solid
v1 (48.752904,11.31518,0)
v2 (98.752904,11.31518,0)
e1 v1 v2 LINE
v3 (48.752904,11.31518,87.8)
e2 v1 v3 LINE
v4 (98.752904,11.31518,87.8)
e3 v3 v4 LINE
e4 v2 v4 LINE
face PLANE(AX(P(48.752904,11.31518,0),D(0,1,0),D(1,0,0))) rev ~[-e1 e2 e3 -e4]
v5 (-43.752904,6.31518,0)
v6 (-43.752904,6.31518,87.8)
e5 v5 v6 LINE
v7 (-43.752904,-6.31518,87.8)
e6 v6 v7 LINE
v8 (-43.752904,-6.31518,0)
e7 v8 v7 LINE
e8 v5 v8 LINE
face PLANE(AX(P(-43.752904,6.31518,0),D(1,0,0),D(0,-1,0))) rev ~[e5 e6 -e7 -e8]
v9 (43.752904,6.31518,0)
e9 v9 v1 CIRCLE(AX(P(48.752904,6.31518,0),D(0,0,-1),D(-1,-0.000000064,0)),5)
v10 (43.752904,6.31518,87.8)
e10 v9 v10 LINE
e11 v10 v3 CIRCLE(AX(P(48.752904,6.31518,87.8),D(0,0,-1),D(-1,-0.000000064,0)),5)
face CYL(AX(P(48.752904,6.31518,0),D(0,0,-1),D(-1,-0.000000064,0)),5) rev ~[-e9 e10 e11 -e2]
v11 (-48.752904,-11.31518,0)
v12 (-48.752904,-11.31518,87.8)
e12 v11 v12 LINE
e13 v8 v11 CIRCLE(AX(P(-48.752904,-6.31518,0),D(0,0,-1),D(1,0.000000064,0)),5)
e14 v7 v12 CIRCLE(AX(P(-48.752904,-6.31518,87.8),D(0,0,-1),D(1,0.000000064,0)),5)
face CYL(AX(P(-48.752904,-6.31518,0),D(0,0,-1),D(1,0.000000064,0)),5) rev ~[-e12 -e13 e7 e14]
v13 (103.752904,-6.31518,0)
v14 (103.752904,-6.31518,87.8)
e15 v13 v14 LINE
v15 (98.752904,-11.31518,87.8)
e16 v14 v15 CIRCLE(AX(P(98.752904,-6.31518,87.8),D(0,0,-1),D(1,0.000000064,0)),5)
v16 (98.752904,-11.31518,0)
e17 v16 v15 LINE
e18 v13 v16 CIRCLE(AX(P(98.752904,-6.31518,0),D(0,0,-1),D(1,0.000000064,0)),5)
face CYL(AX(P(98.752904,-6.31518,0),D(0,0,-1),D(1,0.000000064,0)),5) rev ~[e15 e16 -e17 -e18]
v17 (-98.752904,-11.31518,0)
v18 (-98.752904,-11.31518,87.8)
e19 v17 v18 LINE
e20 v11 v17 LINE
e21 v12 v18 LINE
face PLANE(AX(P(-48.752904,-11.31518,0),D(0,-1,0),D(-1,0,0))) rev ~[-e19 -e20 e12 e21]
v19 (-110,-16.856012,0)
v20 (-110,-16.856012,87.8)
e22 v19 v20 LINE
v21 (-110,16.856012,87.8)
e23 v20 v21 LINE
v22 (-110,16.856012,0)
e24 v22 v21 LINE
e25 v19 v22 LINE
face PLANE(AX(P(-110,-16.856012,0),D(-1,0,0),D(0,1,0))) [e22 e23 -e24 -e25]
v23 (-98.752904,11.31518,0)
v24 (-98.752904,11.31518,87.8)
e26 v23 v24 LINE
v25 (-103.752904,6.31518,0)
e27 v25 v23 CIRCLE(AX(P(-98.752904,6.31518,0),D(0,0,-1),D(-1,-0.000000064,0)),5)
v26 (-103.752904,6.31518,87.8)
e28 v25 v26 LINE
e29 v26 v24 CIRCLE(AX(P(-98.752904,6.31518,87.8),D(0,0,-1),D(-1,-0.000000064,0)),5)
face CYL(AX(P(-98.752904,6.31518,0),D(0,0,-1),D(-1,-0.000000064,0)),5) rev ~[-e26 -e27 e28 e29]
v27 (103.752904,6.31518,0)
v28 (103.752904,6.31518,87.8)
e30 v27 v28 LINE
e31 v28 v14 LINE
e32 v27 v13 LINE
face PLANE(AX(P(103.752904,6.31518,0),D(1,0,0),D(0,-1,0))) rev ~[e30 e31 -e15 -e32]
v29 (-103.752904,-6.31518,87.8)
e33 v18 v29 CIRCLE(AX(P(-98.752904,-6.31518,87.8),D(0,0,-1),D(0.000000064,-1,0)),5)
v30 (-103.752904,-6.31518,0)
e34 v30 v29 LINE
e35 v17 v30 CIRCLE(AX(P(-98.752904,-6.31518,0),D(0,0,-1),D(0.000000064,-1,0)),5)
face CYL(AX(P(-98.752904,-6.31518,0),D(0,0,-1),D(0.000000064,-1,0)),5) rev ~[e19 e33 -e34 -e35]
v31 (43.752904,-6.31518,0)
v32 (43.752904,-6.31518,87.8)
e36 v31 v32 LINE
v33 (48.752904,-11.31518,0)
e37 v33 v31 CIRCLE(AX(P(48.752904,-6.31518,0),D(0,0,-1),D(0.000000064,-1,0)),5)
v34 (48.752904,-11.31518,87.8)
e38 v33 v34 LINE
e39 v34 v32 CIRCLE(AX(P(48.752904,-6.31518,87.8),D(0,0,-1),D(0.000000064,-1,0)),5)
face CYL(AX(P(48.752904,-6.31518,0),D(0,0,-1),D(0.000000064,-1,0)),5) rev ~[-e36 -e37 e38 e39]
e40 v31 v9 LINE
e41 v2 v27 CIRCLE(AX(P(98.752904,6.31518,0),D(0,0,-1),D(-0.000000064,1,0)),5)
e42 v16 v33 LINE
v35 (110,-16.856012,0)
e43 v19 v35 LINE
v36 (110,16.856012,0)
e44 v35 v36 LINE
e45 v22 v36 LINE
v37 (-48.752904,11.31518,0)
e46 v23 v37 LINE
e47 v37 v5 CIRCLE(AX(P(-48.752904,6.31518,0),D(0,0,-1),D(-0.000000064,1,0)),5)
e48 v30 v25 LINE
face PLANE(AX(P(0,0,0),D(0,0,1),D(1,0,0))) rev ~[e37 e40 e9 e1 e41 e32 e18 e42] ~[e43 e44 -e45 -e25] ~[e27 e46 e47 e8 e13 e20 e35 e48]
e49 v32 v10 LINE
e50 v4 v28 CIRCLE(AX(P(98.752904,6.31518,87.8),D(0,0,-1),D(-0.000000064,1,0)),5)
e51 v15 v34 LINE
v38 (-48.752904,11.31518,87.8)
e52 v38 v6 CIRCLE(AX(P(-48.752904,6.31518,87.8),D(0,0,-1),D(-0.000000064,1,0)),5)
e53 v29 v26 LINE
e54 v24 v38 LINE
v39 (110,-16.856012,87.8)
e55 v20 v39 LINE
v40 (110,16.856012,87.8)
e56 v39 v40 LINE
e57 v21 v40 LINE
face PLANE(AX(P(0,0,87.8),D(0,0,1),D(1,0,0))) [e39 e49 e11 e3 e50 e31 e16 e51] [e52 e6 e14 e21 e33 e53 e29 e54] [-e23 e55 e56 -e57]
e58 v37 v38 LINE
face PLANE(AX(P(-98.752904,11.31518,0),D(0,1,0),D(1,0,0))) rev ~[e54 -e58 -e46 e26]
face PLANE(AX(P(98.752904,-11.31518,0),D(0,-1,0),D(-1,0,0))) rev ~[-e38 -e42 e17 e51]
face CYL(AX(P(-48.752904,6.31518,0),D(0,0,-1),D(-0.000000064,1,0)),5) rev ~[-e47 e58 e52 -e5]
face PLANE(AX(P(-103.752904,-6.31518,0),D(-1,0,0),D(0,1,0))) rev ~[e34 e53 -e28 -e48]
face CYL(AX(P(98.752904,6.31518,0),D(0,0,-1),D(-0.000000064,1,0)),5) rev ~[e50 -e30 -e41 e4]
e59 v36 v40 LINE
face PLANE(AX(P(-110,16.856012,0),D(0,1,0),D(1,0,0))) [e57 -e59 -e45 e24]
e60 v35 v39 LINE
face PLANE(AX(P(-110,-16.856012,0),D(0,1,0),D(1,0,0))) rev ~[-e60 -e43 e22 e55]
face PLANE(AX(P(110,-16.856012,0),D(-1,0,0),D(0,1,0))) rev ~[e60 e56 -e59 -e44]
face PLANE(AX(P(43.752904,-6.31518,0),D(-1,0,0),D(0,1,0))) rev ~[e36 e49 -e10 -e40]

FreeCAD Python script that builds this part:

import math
import FreeCAD as App
import Part
import Sketcher


def add_polygon(sketch, points):
    """Adds a closed chain of lines whose ends are joined by coincident constraints."""
    first, n = sketch.GeometryCount, len(points)
    for a, b in zip(points, points[1:] + points[:1]):
        sketch.addGeometry(Part.LineSegment(App.Vector(*a, 0), App.Vector(*b, 0)), False)
    for i in range(n):
        sketch.addConstraint(Sketcher.Constraint("Coincident", first + i, 2, first + (i + 1) % n, 1))

doc = App.newDocument("Part")
body = doc.addObject("PartDesign::Body", "Body")

sketch1 = body.newObject("Sketcher::SketchObject", "Sketch")
sketch1.AttachmentSupport = (doc.getObject("XY_Plane"), [""])
sketch1.MapMode = "FlatFace"
add_polygon(sketch1, [(-110, 16.856012), (-110, -16.856012), (110, -16.856012), (110, 16.856012)])
sketch1.addGeometry(Part.LineSegment(App.Vector(48.752904, 11.31518, 0), App.Vector(98.752904, 11.31518, 0)), False)
sketch1.addGeometry(Part.ArcOfCircle(Part.Circle(App.Vector(98.752904, 6.31518, 0), App.Vector(0, 0, 1), 5), math.radians(-0.000004), math.radians(90.000004)), False)
sketch1.addGeometry(Part.LineSegment(App.Vector(103.752904, 6.31518, 0), App.Vector(103.752904, -6.31518, 0)), False)
sketch1.addGeometry(Part.ArcOfCircle(Part.Circle(App.Vector(98.752904, -6.31518, 0), App.Vector(0, 0, 1), 5), math.radians(-90.000004), math.radians(0.000004)), False)
sketch1.addGeometry(Part.LineSegment(App.Vector(98.752904, -11.31518, 0), App.Vector(48.752904, -11.31518, 0)), False)
sketch1.addGeometry(Part.ArcOfCircle(Part.Circle(App.Vector(48.752904, -6.31518, 0), App.Vector(0, 0, 1), 5), math.radians(179.999996), math.radians(270.000004)), False)
sketch1.addGeometry(Part.LineSegment(App.Vector(43.752904, -6.31518, 0), App.Vector(43.752904, 6.31518, 0)), False)
sketch1.addGeometry(Part.ArcOfCircle(Part.Circle(App.Vector(48.752904, 6.31518, 0), App.Vector(0, 0, 1), 5), math.radians(89.999996), math.radians(180.000004)), False)
sketch1.addGeometry(Part.ArcOfCircle(Part.Circle(App.Vector(-98.752904, 6.31518, 0), App.Vector(0, 0, 1), 5), math.radians(89.999996), math.radians(180.000004)), False)
sketch1.addGeometry(Part.LineSegment(App.Vector(-98.752904, 11.31518, 0), App.Vector(-48.752904, 11.31518, 0)), False)
sketch1.addGeometry(Part.ArcOfCircle(Part.Circle(App.Vector(-48.752904, 6.31518, 0), App.Vector(0, 0, 1), 5), math.radians(-0.000004), math.radians(90.000004)), False)
sketch1.addGeometry(Part.LineSegment(App.Vector(-43.752904, 6.31518, 0), App.Vector(-43.752904, -6.31518, 0)), False)
sketch1.addGeometry(Part.ArcOfCircle(Part.Circle(App.Vector(-48.752904, -6.31518, 0), App.Vector(0, 0, 1), 5), math.radians(-90.000004), math.radians(0.000004)), False)
sketch1.addGeometry(Part.LineSegment(App.Vector(-48.752904, -11.31518, 0), App.Vector(-98.752904, -11.31518, 0)), False)
sketch1.addGeometry(Part.ArcOfCircle(Part.Circle(App.Vector(-98.752904, -6.31518, 0), App.Vector(0, 0, 1), 5), math.radians(179.999996), math.radians(270.000004)), False)
sketch1.addGeometry(Part.LineSegment(App.Vector(-103.752904, -6.31518, 0), App.Vector(-103.752904, 6.31518, 0)), False)
sketch1.addConstraint([
    Sketcher.Constraint("Tangent", 4, 2, 5, 2),
    Sketcher.Constraint("Tangent", 5, 1, 6, 1),
    Sketcher.Constraint("Tangent", 6, 2, 7, 2),
    Sketcher.Constraint("Tangent", 7, 1, 8, 1),
    Sketcher.Constraint("Tangent", 8, 2, 9, 2),
    Sketcher.Constraint("Tangent", 9, 1, 10, 1),
    Sketcher.Constraint("Tangent", 10, 2, 11, 2),
    Sketcher.Constraint("Tangent", 11, 1, 4, 1),
    Sketcher.Constraint("Tangent", 12, 1, 13, 1),
    Sketcher.Constraint("Tangent", 13, 2, 14, 2),
    Sketcher.Constraint("Tangent", 14, 1, 15, 1),
    Sketcher.Constraint("Tangent", 15, 2, 16, 2),
    Sketcher.Constraint("Tangent", 16, 1, 17, 1),
    Sketcher.Constraint("Tangent", 17, 2, 18, 2),
    Sketcher.Constraint("Tangent", 18, 1, 19, 1),
    Sketcher.Constraint("Tangent", 19, 2, 12, 2),
    Sketcher.Constraint("Vertical", 0),
    Sketcher.Constraint("Horizontal", 1),
    Sketcher.Constraint("Vertical", 2),
    Sketcher.Constraint("Horizontal", 3),
    Sketcher.Constraint("Horizontal", 4),
    Sketcher.Constraint("Vertical", 6),
    Sketcher.Constraint("Horizontal", 8),
    Sketcher.Constraint("Vertical", 10),
    Sketcher.Constraint("Horizontal", 13),
    Sketcher.Constraint("Vertical", 15),
    Sketcher.Constraint("Horizontal", 17),
    Sketcher.Constraint("Vertical", 19),
    Sketcher.Constraint("Equal", 5, 7),
    Sketcher.Constraint("Equal", 7, 9),
    Sketcher.Constraint("Equal", 9, 11),
    Sketcher.Constraint("Equal", 11, 12),
    Sketcher.Constraint("Equal", 12, 14),
    Sketcher.Constraint("Equal", 14, 16),
    Sketcher.Constraint("Equal", 16, 18),
    Sketcher.Constraint("Symmetric", 7, 3, 12, 3, -1, 1),
    Sketcher.Constraint("Symmetric", 11, 3, 16, 3, -1, 1),
    Sketcher.Constraint("Symmetric", 0, 2, 2, 2, -1, 1),
    Sketcher.Constraint("Horizontal", 11, 3, 12, 3),
    Sketcher.Constraint("Radius", 5, 5.0),
    Sketcher.Constraint("DistanceX", 1, 1, 1, 2, 220.0),
    Sketcher.Constraint("DistanceX", 4, 1, 4, 2, 50.0),
    Sketcher.Constraint("DistanceY", 6, 2, 6, 1, 12.63036),
    Sketcher.Constraint("DistanceY", 0, 2, 0, 1, 33.712024),
    Sketcher.Constraint("DistanceX", 12, 3, 11, 3, 147.505808),
])
pad1 = body.newObject("PartDesign::Pad", "Pad")
pad1.Profile = sketch1
pad1.Length = 87.8

doc.recompute()
